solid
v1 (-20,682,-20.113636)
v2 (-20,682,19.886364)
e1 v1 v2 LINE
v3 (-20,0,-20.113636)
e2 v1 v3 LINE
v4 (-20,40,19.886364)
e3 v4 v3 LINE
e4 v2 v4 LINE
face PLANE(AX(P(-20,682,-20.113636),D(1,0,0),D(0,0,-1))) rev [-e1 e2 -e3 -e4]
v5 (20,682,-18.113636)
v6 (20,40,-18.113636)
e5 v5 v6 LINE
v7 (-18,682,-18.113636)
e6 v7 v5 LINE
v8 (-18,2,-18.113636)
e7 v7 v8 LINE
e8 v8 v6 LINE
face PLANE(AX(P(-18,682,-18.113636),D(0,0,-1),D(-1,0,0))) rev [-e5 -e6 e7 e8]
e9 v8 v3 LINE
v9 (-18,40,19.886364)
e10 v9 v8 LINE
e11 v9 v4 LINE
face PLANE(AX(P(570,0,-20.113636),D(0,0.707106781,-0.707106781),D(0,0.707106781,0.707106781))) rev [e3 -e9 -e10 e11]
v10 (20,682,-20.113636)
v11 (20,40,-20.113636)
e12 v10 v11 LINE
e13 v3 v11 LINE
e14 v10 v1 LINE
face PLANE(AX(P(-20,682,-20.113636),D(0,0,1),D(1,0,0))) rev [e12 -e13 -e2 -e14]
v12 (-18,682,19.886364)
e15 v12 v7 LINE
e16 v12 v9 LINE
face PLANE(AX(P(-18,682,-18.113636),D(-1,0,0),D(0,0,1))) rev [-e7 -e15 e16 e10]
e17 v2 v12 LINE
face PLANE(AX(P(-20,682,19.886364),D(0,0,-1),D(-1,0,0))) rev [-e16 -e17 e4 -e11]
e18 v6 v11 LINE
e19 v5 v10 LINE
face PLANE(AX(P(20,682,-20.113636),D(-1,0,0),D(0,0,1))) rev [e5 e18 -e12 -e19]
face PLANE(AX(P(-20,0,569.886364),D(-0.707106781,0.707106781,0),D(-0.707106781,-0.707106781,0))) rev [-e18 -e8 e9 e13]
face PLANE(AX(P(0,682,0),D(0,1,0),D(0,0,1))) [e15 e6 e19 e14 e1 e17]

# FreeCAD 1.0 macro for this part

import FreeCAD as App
import Part
import Sketcher
from FreeCAD import Vector
Q = App.Units.Quantity


def add_polygon(sketch, points):
    """Adds a closed chain of lines whose ends are joined by coincident constraints."""
    first, n = sketch.GeometryCount, len(points)
    for a, b in zip(points, points[1:] + points[:1]):
        sketch.addGeometry(Part.LineSegment(App.Vector(*a, 0), App.Vector(*b, 0)), False)
    for i in range(n):
        sketch.addConstraint(Sketcher.Constraint("Coincident", first + i, 2, first + (i + 1) % n, 1))

doc = App.newDocument("Part")
body = doc.addObject("PartDesign::Body", "Body")

# Sketch on XZ plane
sketch1 = doc.addObject("Sketcher::SketchObject", "Sketch")
body.addObject(sketch1)
sketch1.AttachmentSupport = (doc.XZ_Plane, [""])
sketch1.MapMode = "FlatFace"
add_polygon(sketch1, [(20, -20.1), (-20, -20.1), (-20, 19.9), (-18, 19.9), (-18, -18.1), (20, -18.1)])  # lines 0-5
sketch1.addConstraint(Sketcher.Constraint("Horizontal", 0))
sketch1.addConstraint(Sketcher.Constraint("Vertical", 1))
sketch1.addConstraint(Sketcher.Constraint("Horizontal", 2))
sketch1.addConstraint(Sketcher.Constraint("Vertical", 3))
sketch1.addConstraint(Sketcher.Constraint("Horizontal", 4))
sketch1.addConstraint(Sketcher.Constraint("Vertical", 5))
sketch1.addConstraint(Sketcher.Constraint("Equal", 0, 1))
sketch1.addConstraint(Sketcher.Constraint("Equal", 4, 3))
sketch1.addConstraint(Sketcher.Constraint("DistanceX", 0, 2, 0, 1, Q("40 mm")))
sketch1.addConstraint(Sketcher.Constraint("DistanceX", 2, 1, 2, 2, Q("2 mm")))
sketch1.addConstraint(Sketcher.Constraint("DistanceX", 0, 2, -1, 1, Q("20 mm")))
sketch1.addConstraint(Sketcher.Constraint("DistanceY", 0, 2, -1, 1, Q("20.113636 mm")))
pad1 = doc.addObject("PartDesign::Pad", "Pad")
body.addObject(pad1)
pad1.Profile = sketch1
pad1.Length = 682
pad1.Reversed = True

# Sketch on XY plane
sketch2 = doc.addObject("Sketcher::SketchObject", "Sketch001")
body.addObject(sketch2)
sketch2.AttachmentSupport = (doc.XY_Plane, [""])
sketch2.MapMode = "FlatFace"
sketch2.AttachmentOffset = App.Placement(Vector(0, 0, -20.113636), App.Rotation())
add_polygon(sketch2, [(-20, 0), (20, 40), (20, 0)])  # lines 0-2
sketch2.addConstraint(Sketcher.Constraint("Vertical", 1))
sketch2.addConstraint(Sketcher.Constraint("Horizontal", 2))
sketch2.addConstraint(Sketcher.Constraint("Symmetric", 1, 2, 2, 2, -1, 1))
sketch2.addConstraint(Sketcher.Constraint("Equal", 2, 1))
sketch2.addConstraint(Sketcher.Constraint("DistanceX", 2, 2, 2, 1, Q("40 mm")))
pocket1 = doc.addObject("PartDesign::Pocket", "Pocket")
body.addObject(pocket1)
pocket1.Profile = sketch2
pocket1.Length = 590
pocket1.Reversed = True

# Sketch on YZ plane
sketch3 = doc.addObject("Sketcher::SketchObject", "Sketch002")
body.addObject(sketch3)
sketch3.AttachmentSupport = (doc.YZ_Plane, [""])
sketch3.MapMode = "FlatFace"
sketch3.AttachmentOffset = App.Placement(Vector(0, 0, -20), App.Rotation())
add_polygon(sketch3, [(40, 20), (0, -20), (0, 20)])  # lines 0-2
sketch3.addConstraint(Sketcher.Constraint("Vertical", 1))
sketch3.addConstraint(Sketcher.Constraint("Horizontal", 2))
sketch3.addConstraint(Sketcher.Constraint("PointOnObject", 0, 2, -2))
sketch3.addConstraint(Sketcher.Constraint("Equal", 2, 1))
sketch3.addConstraint(Sketcher.Constraint("DistanceX", 2, 1, 2, 2, Q("40 mm")))
sketch3.addConstraint(Sketcher.Constraint("DistanceY", 0, 2, -1, 1, Q("20.113636 mm")))
pocket2 = doc.addObject("PartDesign::Pocket", "Pocket001")
body.addObject(pocket2)
pocket2.Profile = sketch3
pocket2.Length = 590
pocket2.Reversed = True

doc.recompute()
